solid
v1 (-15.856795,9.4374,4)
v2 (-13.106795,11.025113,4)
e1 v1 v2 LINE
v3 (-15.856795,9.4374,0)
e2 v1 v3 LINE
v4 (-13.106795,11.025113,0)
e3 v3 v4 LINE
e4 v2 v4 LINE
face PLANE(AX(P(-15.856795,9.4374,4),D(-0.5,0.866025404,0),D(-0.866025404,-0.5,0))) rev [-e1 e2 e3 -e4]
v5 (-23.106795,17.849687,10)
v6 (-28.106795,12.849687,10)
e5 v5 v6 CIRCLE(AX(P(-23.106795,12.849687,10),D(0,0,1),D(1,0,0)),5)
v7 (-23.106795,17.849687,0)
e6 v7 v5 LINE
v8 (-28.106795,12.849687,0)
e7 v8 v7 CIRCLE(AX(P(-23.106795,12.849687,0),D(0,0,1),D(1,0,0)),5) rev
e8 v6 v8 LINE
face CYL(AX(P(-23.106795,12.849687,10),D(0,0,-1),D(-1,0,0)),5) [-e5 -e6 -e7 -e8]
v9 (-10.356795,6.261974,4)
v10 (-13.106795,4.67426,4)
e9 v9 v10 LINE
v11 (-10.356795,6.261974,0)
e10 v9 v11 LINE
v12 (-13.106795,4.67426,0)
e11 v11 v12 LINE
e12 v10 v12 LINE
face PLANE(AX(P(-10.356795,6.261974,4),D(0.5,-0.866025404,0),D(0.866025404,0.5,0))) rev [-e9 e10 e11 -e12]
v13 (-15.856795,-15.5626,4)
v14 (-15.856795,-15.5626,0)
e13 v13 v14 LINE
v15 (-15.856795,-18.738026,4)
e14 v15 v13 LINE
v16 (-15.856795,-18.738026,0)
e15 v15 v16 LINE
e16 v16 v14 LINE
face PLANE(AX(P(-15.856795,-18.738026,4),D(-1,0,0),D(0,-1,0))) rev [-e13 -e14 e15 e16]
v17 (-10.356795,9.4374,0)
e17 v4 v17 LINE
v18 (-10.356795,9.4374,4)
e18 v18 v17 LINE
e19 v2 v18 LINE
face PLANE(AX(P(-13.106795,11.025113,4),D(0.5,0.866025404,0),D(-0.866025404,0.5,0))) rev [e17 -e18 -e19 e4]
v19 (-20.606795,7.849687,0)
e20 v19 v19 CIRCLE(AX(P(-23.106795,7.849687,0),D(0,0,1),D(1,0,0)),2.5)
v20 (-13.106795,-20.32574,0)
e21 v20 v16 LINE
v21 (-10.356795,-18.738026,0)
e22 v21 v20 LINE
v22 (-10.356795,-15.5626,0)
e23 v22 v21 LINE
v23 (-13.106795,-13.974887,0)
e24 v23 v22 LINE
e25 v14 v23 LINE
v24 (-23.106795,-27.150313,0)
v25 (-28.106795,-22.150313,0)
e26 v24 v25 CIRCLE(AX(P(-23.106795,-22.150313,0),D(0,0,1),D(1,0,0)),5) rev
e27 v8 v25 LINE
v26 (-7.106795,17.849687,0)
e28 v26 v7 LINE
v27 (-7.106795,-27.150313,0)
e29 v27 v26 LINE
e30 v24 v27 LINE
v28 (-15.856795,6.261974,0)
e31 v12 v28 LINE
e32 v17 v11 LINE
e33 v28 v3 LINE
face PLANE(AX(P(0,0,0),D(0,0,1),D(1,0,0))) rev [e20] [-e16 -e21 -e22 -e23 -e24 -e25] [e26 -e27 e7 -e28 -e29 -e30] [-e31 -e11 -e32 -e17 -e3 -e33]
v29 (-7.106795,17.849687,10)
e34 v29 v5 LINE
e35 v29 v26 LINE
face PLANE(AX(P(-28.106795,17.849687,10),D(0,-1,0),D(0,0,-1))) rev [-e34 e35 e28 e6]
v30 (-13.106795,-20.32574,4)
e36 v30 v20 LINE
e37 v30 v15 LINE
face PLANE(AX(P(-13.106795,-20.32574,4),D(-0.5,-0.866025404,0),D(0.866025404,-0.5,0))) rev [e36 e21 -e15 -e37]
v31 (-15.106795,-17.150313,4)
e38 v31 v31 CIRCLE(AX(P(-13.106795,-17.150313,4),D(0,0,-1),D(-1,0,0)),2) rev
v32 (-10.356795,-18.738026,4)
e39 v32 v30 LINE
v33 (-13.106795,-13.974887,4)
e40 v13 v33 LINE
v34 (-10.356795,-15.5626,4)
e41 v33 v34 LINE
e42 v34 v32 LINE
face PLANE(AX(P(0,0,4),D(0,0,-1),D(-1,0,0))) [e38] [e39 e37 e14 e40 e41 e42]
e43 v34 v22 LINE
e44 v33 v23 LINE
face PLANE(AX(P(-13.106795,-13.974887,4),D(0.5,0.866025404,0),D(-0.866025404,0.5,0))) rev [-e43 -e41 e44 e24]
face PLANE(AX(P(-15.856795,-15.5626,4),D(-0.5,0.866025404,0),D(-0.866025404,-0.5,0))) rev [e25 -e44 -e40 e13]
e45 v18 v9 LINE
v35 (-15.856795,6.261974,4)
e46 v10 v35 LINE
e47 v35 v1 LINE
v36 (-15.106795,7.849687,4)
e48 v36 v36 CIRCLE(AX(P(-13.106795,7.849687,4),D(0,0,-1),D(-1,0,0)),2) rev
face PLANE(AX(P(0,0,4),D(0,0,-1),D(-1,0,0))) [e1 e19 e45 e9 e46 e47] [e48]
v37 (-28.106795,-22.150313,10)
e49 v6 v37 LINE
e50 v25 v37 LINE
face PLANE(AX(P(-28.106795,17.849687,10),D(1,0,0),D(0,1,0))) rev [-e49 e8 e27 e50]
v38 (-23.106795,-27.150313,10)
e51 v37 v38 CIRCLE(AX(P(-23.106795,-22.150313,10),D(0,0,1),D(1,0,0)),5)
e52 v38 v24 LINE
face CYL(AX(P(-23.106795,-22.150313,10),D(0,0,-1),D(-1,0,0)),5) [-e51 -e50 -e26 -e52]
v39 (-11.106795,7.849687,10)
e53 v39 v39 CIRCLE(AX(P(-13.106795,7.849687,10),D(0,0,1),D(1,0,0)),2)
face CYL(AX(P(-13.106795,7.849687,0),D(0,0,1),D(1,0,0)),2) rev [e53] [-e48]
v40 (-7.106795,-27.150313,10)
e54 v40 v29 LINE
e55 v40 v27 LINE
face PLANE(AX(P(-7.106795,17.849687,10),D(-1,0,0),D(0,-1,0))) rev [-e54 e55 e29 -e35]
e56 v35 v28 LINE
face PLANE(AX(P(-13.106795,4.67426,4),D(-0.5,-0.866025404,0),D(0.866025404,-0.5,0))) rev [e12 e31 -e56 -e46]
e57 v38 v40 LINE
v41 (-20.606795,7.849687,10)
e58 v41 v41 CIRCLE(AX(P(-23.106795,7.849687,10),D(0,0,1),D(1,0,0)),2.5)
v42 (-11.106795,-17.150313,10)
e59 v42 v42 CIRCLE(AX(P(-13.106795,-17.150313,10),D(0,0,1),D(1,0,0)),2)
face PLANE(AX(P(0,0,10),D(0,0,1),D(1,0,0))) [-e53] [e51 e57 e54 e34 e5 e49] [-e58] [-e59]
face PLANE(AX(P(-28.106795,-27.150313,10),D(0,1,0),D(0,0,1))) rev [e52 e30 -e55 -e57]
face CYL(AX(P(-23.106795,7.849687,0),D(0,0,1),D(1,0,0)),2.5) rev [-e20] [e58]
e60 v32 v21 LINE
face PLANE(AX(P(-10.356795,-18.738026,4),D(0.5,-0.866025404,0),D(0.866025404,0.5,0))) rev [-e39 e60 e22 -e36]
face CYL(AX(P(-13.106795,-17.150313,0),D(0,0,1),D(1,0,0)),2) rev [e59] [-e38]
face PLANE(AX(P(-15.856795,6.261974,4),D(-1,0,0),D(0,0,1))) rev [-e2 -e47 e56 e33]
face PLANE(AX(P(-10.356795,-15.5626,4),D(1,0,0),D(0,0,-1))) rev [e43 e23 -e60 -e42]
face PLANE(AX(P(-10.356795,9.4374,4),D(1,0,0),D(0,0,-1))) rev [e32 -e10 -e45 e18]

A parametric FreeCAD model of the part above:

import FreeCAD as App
import Part
import Sketcher
Q = App.Units.Quantity


def edges_at(feature, points):
    """Names of the edges that pass closest to the given points."""
    edges = feature.Shape.Edges
    near = lambda p: min(range(len(edges)), key=lambda i: edges[i].distToShape(Part.Vertex(*p))[0])
    return sorted({f"Edge{near(p) + 1}" for p in points})

doc = App.newDocument("Part")
body = doc.addObject("PartDesign::Body", "Body")

sketch1 = body.newObject("Sketcher::SketchObject", "Sketch")
sketch1.AttachmentSupport = (doc.getObject("XY_Plane"), [""])
sketch1.MapMode = "FlatFace"
sketch1.addGeometry(Part.LineSegment(App.Vector(-28, 18, 0), App.Vector(-28, -27, 0)), False)
sketch1.addGeometry(Part.LineSegment(App.Vector(-28, -27, 0), App.Vector(-7, -27, 0)), False)
sketch1.addGeometry(Part.LineSegment(App.Vector(-7, -27, 0), App.Vector(-7, 18, 0)), False)
sketch1.addGeometry(Part.LineSegment(App.Vector(-7, 18, 0), App.Vector(-28, 18, 0)), False)
sketch1.addConstraint(Sketcher.Constraint("Coincident", 0, 2, 1, 1))
sketch1.addConstraint(Sketcher.Constraint("Coincident", 1, 2, 2, 1))
sketch1.addConstraint(Sketcher.Constraint("Coincident", 2, 2, 3, 1))
sketch1.addConstraint(Sketcher.Constraint("Coincident", 3, 2, 0, 1))
sketch1.addConstraint(Sketcher.Constraint("Vertical", 0))
sketch1.addConstraint(Sketcher.Constraint("Horizontal", 1))
sketch1.addConstraint(Sketcher.Constraint("Vertical", 2))
sketch1.addConstraint(Sketcher.Constraint("Horizontal", 3))
sketch1.addConstraint(Sketcher.Constraint("DistanceX", 1, 1, 1, 2, Q("21 mm")))
sketch1.addConstraint(Sketcher.Constraint("DistanceY", 0, 2, 0, 1, Q("45 mm")))
sketch1.addConstraint(Sketcher.Constraint("DistanceX", 0, 2, -1, 1, Q("28.106795 mm")))
sketch1.addConstraint(Sketcher.Constraint("DistanceY", 0, 2, -1, 1, Q("27.150313 mm")))
pad1 = body.newObject("PartDesign::Pad", "Pad")
pad1.Profile = sketch1
pad1.Length = 10

sketch2 = body.newObject("Sketcher::SketchObject", "Sketch001")
sketch2.AttachmentSupport = (doc.getObject("XY_Plane"), [""])
sketch2.MapMode = "FlatFace"
sketch2.AttachmentOffset = App.Placement(App.Vector(0, 0, 10), App.Rotation())
sketch2.addGeometry(Part.Circle(App.Vector(-23.1, 7.8, 0), App.Vector(0, 0, 1), 2.5), False)
sketch2.addConstraint(Sketcher.Constraint("Diameter", 0, Q("5 mm")))
sketch2.addConstraint(Sketcher.Constraint("DistanceX", 0, 3, -1, 1, Q("23.106795 mm")))
sketch2.addConstraint(Sketcher.Constraint("DistanceY", -1, 1, 0, 3, Q("7.849687 mm")))
pocket1 = body.newObject("PartDesign::Pocket", "Pocket")
pocket1.Profile = sketch2
pocket1.Length = 10

sketch3 = body.newObject("Sketcher::SketchObject", "Sketch002")
sketch3.AttachmentSupport = (doc.getObject("XY_Plane"), [""])
sketch3.MapMode = "FlatFace"
sketch3.AttachmentOffset = App.Placement(App.Vector(0, 0, 10), App.Rotation())
sketch3.addGeometry(Part.Circle(App.Vector(-13.1, 7.8, 0), App.Vector(0, 0, 1), 2), False)
sketch3.addGeometry(Part.Circle(App.Vector(-13.1, -17.2, 0), App.Vector(0, 0, 1), 2), False)
sketch3.addConstraint(Sketcher.Constraint("Equal", 0, 1))
sketch3.addConstraint(Sketcher.Constraint("Vertical", 0, 3, 1, 3))
sketch3.addConstraint(Sketcher.Constraint("Diameter", 0, Q("4 mm")))
sketch3.addConstraint(Sketcher.Constraint("DistanceY", 1, 3, 0, 3, Q("25 mm")))
sketch3.addConstraint(Sketcher.Constraint("DistanceX", 0, 3, -1, 1, Q("13.106795 mm")))
sketch3.addConstraint(Sketcher.Constraint("DistanceY", -1, 1, 0, 3, Q("7.849687 mm")))
pocket2 = body.newObject("PartDesign::Pocket", "Pocket001")
pocket2.Profile = sketch3
pocket2.Length = 10
doc.recompute()

fillet = body.newObject("PartDesign::Fillet", "Fillet")
fillet.Base = (pocket2, edges_at(pocket2, [(-28.107, 17.85, 5), (-28.107, -27.15, 5)]))
fillet.Radius = 5

sketch4 = body.newObject("Sketcher::SketchObject", "Sketch003")
sketch4.AttachmentSupport = (doc.getObject("XY_Plane"), [""])
sketch4.MapMode = "FlatFace"
sketch4.addGeometry(Part.LineSegment(App.Vector(-15.9, 9.4, 0), App.Vector(-13.1, 11, 0)), False)
sketch4.addGeometry(Part.LineSegment(App.Vector(-13.1, 11, 0), App.Vector(-10.4, 9.4, 0)), False)
sketch4.addGeometry(Part.LineSegment(App.Vector(-10.4, 9.4, 0), App.Vector(-10.4, 6.3, 0)), False)
sketch4.addGeometry(Part.LineSegment(App.Vector(-10.4, 6.3, 0), App.Vector(-13.1, 4.7, 0)), False)
sketch4.addGeometry(Part.LineSegment(App.Vector(-13.1, 4.7, 0), App.Vector(-15.9, 6.3, 0)), False)
sketch4.addGeometry(Part.LineSegment(App.Vector(-15.9, 6.3, 0), App.Vector(-15.9, 9.4, 0)), False)
sketch4.addGeometry(Part.LineSegment(App.Vector(-15.9, -15.6, 0), App.Vector(-13.1, -14, 0)), False)
sketch4.addGeometry(Part.LineSegment(App.Vector(-13.1, -14, 0), App.Vector(-10.4, -15.6, 0)), False)
sketch4.addGeometry(Part.LineSegment(App.Vector(-10.4, -15.6, 0), App.Vector(-10.4, -18.7, 0)), False)
sketch4.addGeometry(Part.LineSegment(App.Vector(-10.4, -18.7, 0), App.Vector(-13.1, -20.3, 0)), False)
sketch4.addGeometry(Part.LineSegment(App.Vector(-13.1, -20.3, 0), App.Vector(-15.9, -18.7, 0)), False)
sketch4.addGeometry(Part.LineSegment(App.Vector(-15.9, -18.7, 0), App.Vector(-15.9, -15.6, 0)), False)
sketch4.addConstraint(Sketcher.Constraint("Coincident", 0, 2, 1, 1))
sketch4.addConstraint(Sketcher.Constraint("Coincident", 1, 2, 2, 1))
sketch4.addConstraint(Sketcher.Constraint("Coincident", 2, 2, 3, 1))
sketch4.addConstraint(Sketcher.Constraint("Coincident", 3, 2, 4, 1))
sketch4.addConstraint(Sketcher.Constraint("Coincident", 4, 2, 5, 1))
sketch4.addConstraint(Sketcher.Constraint("Coincident", 5, 2, 0, 1))
sketch4.addConstraint(Sketcher.Constraint("Coincident", 6, 2, 7, 1))
sketch4.addConstraint(Sketcher.Constraint("Coincident", 7, 2, 8, 1))
sketch4.addConstraint(Sketcher.Constraint("Coincident", 8, 2, 9, 1))
sketch4.addConstraint(Sketcher.Constraint("Coincident", 9, 2, 10, 1))
sketch4.addConstraint(Sketcher.Constraint("Coincident", 10, 2, 11, 1))
sketch4.addConstraint(Sketcher.Constraint("Coincident", 11, 2, 6, 1))
sketch4.addConstraint(Sketcher.Constraint("Vertical", 2))
sketch4.addConstraint(Sketcher.Constraint("Vertical", 5))
sketch4.addConstraint(Sketcher.Constraint("Vertical", 8))
sketch4.addConstraint(Sketcher.Constraint("Vertical", 11))
sketch4.addConstraint(Sketcher.Constraint("Parallel", 0, 3))
sketch4.addConstraint(Sketcher.Constraint("Parallel", 1, 4))
sketch4.addConstraint(Sketcher.Constraint("Parallel", 3, 6))
sketch4.addConstraint(Sketcher.Constraint("Parallel", 4, 7))
sketch4.addConstraint(Sketcher.Constraint("Parallel", 6, 9))
sketch4.addConstraint(Sketcher.Constraint("Parallel", 7, 10))
sketch4.addConstraint(Sketcher.Constraint("Horizontal", 2, 2, 4, 2))
sketch4.addConstraint(Sketcher.Constraint("Horizontal", 1, 2, 5, 2))
sketch4.addConstraint(Sketcher.Constraint("Horizontal", 8, 2, 10, 2))
sketch4.addConstraint(Sketcher.Constraint("Horizontal", 7, 2, 11, 2))
sketch4.addConstraint(Sketcher.Constraint("Vertical", 0, 2, 3, 2))
sketch4.addConstraint(Sketcher.Constraint("Vertical", 3, 2, 6, 2))
sketch4.addConstraint(Sketcher.Constraint("Vertical", 2, 2, 7, 2))
sketch4.addConstraint(Sketcher.Constraint("Equal", 5, 8))
sketch4.addConstraint(Sketcher.Constraint("Angle", 0, Q("30 deg")))
sketch4.addConstraint(Sketcher.Constraint("DistanceY", 7, 2, 1, 2, Q("25 mm")))
sketch4.addConstraint(Sketcher.Constraint("DistanceX", 4, 2, 2, 2, Q("5.5 mm")))
sketch4.addConstraint(Sketcher.Constraint("DistanceY", -1, 1, 1, 2, Q("9.4374 mm")))
sketch4.addConstraint(Sketcher.Constraint("DistanceY", 2, 2, 2, 1, Q("3.175426 mm")))
sketch4.addConstraint(Sketcher.Constraint("DistanceX", 0, 2, -1, 1, Q("13.106795 mm")))
pocket3 = body.newObject("PartDesign::Pocket", "Pocket002")
pocket3.Profile = sketch4
pocket3.Length = 4
pocket3.Reversed = True

doc.recompute()
